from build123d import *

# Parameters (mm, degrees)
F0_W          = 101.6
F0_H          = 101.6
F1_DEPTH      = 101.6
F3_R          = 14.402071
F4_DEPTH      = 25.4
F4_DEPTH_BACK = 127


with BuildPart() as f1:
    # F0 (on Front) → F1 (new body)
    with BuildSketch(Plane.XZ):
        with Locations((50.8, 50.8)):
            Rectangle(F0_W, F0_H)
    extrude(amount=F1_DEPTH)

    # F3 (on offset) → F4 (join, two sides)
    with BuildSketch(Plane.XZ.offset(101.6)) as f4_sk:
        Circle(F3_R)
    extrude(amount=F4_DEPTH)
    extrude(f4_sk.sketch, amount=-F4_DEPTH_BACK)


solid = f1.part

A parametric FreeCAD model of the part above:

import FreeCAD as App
import Part
import Sketcher
from FreeCAD import Vector
Q = App.Units.Quantity

doc = App.newDocument("Part")
body = doc.addObject("PartDesign::Body", "Body")

sketch1 = body.newObject("Sketcher::SketchObject", "Sketch")
sketch1.AttachmentSupport = (doc.getObject("XZ_Plane"), [""])
sketch1.MapMode = "FlatFace"
sketch1.addGeometry(Part.LineSegment(Vector(0, 102, 0), Vector(0, 0, 0)), False)
sketch1.addGeometry(Part.LineSegment(Vector(0, 0, 0), Vector(102, 0, 0)), False)
sketch1.addGeometry(Part.LineSegment(Vector(102, 0, 0), Vector(102, 102, 0)), False)
sketch1.addGeometry(Part.LineSegment(Vector(102, 102, 0), Vector(0, 102, 0)), False)
sketch1.addConstraint(Sketcher.Constraint("Coincident", 0, 2, 1, 1))
sketch1.addConstraint(Sketcher.Constraint("Coincident", 1, 2, 2, 1))
sketch1.addConstraint(Sketcher.Constraint("Coincident", 2, 2, 3, 1))
sketch1.addConstraint(Sketcher.Constraint("Coincident", 3, 2, 0, 1))
sketch1.addConstraint(Sketcher.Constraint("Vertical", 0))
sketch1.addConstraint(Sketcher.Constraint("Horizontal", 1))
sketch1.addConstraint(Sketcher.Constraint("Vertical", 2))
sketch1.addConstraint(Sketcher.Constraint("Horizontal", 3))
sketch1.addConstraint(Sketcher.Constraint("Coincident", 0, 2, -1, 1))
sketch1.addConstraint(Sketcher.Constraint("Equal", 3, 0))
sketch1.addConstraint(Sketcher.Constraint("DistanceX", 1, 1, 1, 2, Q("4 in")))
pad1 = body.newObject("PartDesign::Pad", "Pad")
pad1.Profile = sketch1
pad1.Length = Q("4 in")

sketch2 = body.newObject("Sketcher::SketchObject", "Sketch001")
sketch2.AttachmentSupport = (doc.getObject("XZ_Plane"), [""])
sketch2.MapMode = "FlatFace"
sketch2.AttachmentOffset = App.Placement(Vector(0, 0, 4 * 25.4), App.Rotation())
sketch2.addGeometry(Part.Circle(Vector(0, 0, 0), Vector(0, 0, 1), 14), False)
sketch2.addConstraint(Sketcher.Constraint("Coincident", 0, 3, -1, 1))
sketch2.addConstraint(Sketcher.Constraint("Diameter", 0, 28.804142))
pad2 = body.newObject("PartDesign::Pad", "Pad001")
pad2.Profile = sketch2
pad2.Type = "TwoLengths"
pad2.Length = Q("1 in")
pad2.Length2 = Q("5 in")

doc.recompute()
